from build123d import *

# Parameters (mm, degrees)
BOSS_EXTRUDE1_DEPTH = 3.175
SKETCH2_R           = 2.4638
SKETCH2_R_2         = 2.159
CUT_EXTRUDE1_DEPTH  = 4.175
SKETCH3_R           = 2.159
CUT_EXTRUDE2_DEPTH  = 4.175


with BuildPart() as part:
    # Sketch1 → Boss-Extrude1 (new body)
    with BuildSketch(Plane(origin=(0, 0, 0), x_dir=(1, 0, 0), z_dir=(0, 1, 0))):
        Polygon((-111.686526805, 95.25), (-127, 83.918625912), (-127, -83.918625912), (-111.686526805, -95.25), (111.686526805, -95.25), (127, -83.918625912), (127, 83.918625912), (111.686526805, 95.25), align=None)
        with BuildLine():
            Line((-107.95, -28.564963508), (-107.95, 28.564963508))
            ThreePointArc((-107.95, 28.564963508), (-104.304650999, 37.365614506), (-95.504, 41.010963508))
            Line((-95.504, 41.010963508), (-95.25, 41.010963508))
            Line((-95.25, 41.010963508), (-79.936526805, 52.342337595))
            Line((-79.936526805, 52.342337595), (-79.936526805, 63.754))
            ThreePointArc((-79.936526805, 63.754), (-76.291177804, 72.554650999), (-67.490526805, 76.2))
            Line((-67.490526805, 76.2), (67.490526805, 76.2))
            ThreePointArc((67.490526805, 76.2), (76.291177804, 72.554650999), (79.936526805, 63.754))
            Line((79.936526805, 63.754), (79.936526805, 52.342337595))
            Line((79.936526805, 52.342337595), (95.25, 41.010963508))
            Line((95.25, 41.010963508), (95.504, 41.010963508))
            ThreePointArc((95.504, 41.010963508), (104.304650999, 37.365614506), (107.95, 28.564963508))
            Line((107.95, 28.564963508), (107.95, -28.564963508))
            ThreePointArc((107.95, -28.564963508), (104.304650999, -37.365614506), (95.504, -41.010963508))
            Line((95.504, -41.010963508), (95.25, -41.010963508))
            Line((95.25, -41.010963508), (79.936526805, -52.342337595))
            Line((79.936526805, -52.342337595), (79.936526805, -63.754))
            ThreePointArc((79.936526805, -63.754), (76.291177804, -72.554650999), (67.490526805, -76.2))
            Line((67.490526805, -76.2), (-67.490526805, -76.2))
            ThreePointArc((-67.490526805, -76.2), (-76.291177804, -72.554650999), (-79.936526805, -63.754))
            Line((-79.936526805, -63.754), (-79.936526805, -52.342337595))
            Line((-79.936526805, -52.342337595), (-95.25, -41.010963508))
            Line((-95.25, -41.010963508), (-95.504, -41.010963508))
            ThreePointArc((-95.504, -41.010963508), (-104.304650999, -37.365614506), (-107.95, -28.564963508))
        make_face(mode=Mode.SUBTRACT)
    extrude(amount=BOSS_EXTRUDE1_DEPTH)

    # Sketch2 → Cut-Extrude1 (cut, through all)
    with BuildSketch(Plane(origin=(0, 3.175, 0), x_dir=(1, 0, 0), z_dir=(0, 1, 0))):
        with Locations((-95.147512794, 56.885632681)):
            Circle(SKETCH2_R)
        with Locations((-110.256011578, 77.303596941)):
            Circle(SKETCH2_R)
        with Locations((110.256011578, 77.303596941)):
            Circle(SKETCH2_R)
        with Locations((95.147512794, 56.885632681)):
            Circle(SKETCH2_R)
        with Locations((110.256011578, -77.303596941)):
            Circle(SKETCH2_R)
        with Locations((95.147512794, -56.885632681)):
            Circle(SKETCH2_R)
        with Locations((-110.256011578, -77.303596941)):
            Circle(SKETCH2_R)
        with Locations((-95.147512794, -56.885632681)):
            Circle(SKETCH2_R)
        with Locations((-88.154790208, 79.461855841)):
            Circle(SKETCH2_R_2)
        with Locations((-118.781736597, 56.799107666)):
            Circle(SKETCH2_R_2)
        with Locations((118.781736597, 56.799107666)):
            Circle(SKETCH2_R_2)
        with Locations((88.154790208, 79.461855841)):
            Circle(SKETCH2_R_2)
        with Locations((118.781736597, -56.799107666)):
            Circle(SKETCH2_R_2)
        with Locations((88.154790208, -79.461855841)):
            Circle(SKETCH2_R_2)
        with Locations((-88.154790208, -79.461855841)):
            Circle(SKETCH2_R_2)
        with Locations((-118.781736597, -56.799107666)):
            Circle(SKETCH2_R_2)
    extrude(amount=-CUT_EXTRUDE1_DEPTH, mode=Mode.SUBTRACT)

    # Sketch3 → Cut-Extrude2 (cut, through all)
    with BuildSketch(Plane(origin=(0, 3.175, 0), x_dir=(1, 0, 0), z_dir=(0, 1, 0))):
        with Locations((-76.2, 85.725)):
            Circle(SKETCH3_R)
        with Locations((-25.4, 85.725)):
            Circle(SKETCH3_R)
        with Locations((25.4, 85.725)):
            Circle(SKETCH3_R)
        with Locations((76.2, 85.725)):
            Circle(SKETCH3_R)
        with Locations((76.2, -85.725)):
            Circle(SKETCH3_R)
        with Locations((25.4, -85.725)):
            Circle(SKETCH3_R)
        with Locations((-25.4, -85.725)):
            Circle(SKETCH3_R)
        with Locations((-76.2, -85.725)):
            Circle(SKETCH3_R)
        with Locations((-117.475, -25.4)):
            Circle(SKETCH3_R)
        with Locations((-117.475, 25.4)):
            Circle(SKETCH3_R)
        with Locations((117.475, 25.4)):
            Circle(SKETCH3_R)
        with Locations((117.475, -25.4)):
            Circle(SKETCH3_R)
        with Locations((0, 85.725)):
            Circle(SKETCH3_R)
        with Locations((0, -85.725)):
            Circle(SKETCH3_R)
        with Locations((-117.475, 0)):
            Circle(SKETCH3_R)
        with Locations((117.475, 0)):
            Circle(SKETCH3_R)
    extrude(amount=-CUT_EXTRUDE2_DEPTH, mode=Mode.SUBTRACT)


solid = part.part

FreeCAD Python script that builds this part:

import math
import FreeCAD as App
import Part
import Sketcher

V = App.Vector
Q = App.Units.Quantity


def add_polygon(sketch, points):
    """Adds a closed chain of lines whose ends are joined by coincident constraints."""
    first, n = sketch.GeometryCount, len(points)
    for a, b in zip(points, points[1:] + points[:1]):
        sketch.addGeometry(Part.LineSegment(App.Vector(*a, 0), App.Vector(*b, 0)), False)
    for i in range(n):
        sketch.addConstraint(Sketcher.Constraint("Coincident", first + i, 2, first + (i + 1) % n, 1))

doc = App.newDocument("Part")
body = doc.addObject("PartDesign::Body", "Body")

# Sketch on XZ plane
sketch1 = doc.addObject("Sketcher::SketchObject", "Sketch")
body.addObject(sketch1)
sketch1.AttachmentSupport = (doc.XZ_Plane, [""])
sketch1.MapMode = "FlatFace"
add_polygon(sketch1, [(-111.69, -95.25), (-127, -83.92), (-127, 83.92), (-111.69, 95.25), (111.69, 95.25), (127, 83.92), (127, -83.92), (111.69, -95.25)])  # lines 0-7
sketch1.addGeometry(Part.ArcOfCircle(Part.Circle(V(-95.5, 28.56, 0), V(0, 0, 1), 12.45), math.radians(90), math.radians(180)), False)  # 8
sketch1.addGeometry(Part.LineSegment(V(-107.95, 28.56, 0), V(-107.95, -28.56, 0)), False)  # 9
sketch1.addGeometry(Part.ArcOfCircle(Part.Circle(V(-95.5, -28.56, 0), V(0, 0, 1), 12.45), math.radians(-180), math.radians(-90)), False)  # 10
sketch1.addGeometry(Part.LineSegment(V(-95.5, -41.01, 0), V(-95.25, -41.01, 0)), False)  # 11
sketch1.addGeometry(Part.LineSegment(V(-95.25, -41.01, 0), V(-79.94, -52.34, 0)), False)  # 12
sketch1.addGeometry(Part.LineSegment(V(-79.94, -52.34, 0), V(-79.94, -63.75, 0)), False)  # 13
sketch1.addGeometry(Part.ArcOfCircle(Part.Circle(V(-67.49, -63.75, 0), V(0, 0, 1), 12.45), math.radians(180), math.radians(270)), False)  # 14
sketch1.addGeometry(Part.LineSegment(V(-67.49, -76.2, 0), V(67.49, -76.2, 0)), False)  # 15
sketch1.addGeometry(Part.ArcOfCircle(Part.Circle(V(67.49, -63.75, 0), V(0, 0, 1), 12.45), math.radians(-90), math.radians(0)), False)  # 16
sketch1.addGeometry(Part.LineSegment(V(79.94, -63.75, 0), V(79.94, -52.34, 0)), False)  # 17
sketch1.addGeometry(Part.LineSegment(V(79.94, -52.34, 0), V(95.25, -41.01, 0)), False)  # 18
sketch1.addGeometry(Part.LineSegment(V(95.25, -41.01, 0), V(95.5, -41.01, 0)), False)  # 19
sketch1.addGeometry(Part.ArcOfCircle(Part.Circle(V(95.5, -28.56, 0), V(0, 0, 1), 12.45), math.radians(-90), math.radians(0)), False)  # 20
sketch1.addGeometry(Part.LineSegment(V(107.95, -28.56, 0), V(107.95, 28.56, 0)), False)  # 21
sketch1.addGeometry(Part.ArcOfCircle(Part.Circle(V(95.5, 28.56, 0), V(0, 0, 1), 12.45), math.radians(0), math.radians(90)), False)  # 22
sketch1.addGeometry(Part.LineSegment(V(95.5, 41.01, 0), V(95.25, 41.01, 0)), False)  # 23
sketch1.addGeometry(Part.LineSegment(V(95.25, 41.01, 0), V(79.94, 52.34, 0)), False)  # 24
sketch1.addGeometry(Part.LineSegment(V(79.94, 52.34, 0), V(79.94, 63.75, 0)), False)  # 25
sketch1.addGeometry(Part.ArcOfCircle(Part.Circle(V(67.49, 63.75, 0), V(0, 0, 1), 12.45), math.radians(0), math.radians(90)), False)  # 26
sketch1.addGeometry(Part.LineSegment(V(67.49, 76.2, 0), V(-67.49, 76.2, 0)), False)  # 27
sketch1.addGeometry(Part.ArcOfCircle(Part.Circle(V(-67.49, 63.75, 0), V(0, 0, 1), 12.45), math.radians(90), math.radians(180)), False)  # 28
sketch1.addGeometry(Part.LineSegment(V(-79.94, 63.75, 0), V(-79.94, 52.34, 0)), False)  # 29
sketch1.addGeometry(Part.LineSegment(V(-79.94, 52.34, 0), V(-95.25, 41.01, 0)), False)  # 30
sketch1.addGeometry(Part.LineSegment(V(-95.25, 41.01, 0), V(-95.5, 41.01, 0)), False)  # 31
sketch1.addConstraint([
    Sketcher.Constraint("Tangent", 8, 2, 9, 1),
    Sketcher.Constraint("Tangent", 9, 2, 10, 1),
    Sketcher.Constraint("Tangent", 10, 2, 11, 1),
    Sketcher.Constraint("Coincident", 11, 2, 12, 1),
    Sketcher.Constraint("Coincident", 12, 2, 13, 1),
    Sketcher.Constraint("Tangent", 13, 2, 14, 1),
    Sketcher.Constraint("Tangent", 14, 2, 15, 1),
    Sketcher.Constraint("Tangent", 15, 2, 16, 1),
    Sketcher.Constraint("Tangent", 16, 2, 17, 1),
    Sketcher.Constraint("Coincident", 17, 2, 18, 1),
    Sketcher.Constraint("Coincident", 18, 2, 19, 1),
    Sketcher.Constraint("Tangent", 19, 2, 20, 1),
    Sketcher.Constraint("Tangent", 20, 2, 21, 1),
    Sketcher.Constraint("Tangent", 21, 2, 22, 1),
    Sketcher.Constraint("Tangent", 22, 2, 23, 1),
    Sketcher.Constraint("Coincident", 23, 2, 24, 1),
    Sketcher.Constraint("Coincident", 24, 2, 25, 1),
    Sketcher.Constraint("Tangent", 25, 2, 26, 1),
    Sketcher.Constraint("Tangent", 26, 2, 27, 1),
    Sketcher.Constraint("Tangent", 27, 2, 28, 1),
    Sketcher.Constraint("Tangent", 28, 2, 29, 1),
    Sketcher.Constraint("Coincident", 29, 2, 30, 1),
    Sketcher.Constraint("Coincident", 30, 2, 31, 1),
    Sketcher.Constraint("Tangent", 31, 2, 8, 1),
    Sketcher.Constraint("Vertical", 1),
    Sketcher.Constraint("Horizontal", 3),
    Sketcher.Constraint("Vertical", 5),
    Sketcher.Constraint("Horizontal", 7),
    Sketcher.Constraint("Vertical", 9),
    Sketcher.Constraint("Horizontal", 11),
    Sketcher.Constraint("Vertical", 13),
    Sketcher.Constraint("Horizontal", 15),
    Sketcher.Constraint("Vertical", 17),
    Sketcher.Constraint("Horizontal", 19),
    Sketcher.Constraint("Vertical", 21),
    Sketcher.Constraint("Horizontal", 23),
    Sketcher.Constraint("Vertical", 25),
    Sketcher.Constraint("Horizontal", 27),
    Sketcher.Constraint("Vertical", 29),
    Sketcher.Constraint("Horizontal", 31),
    Sketcher.Constraint("Equal", 8, 10),
    Sketcher.Constraint("Equal", 10, 14),
    Sketcher.Constraint("Equal", 14, 16),
    Sketcher.Constraint("Equal", 16, 20),
    Sketcher.Constraint("Equal", 20, 22),
    Sketcher.Constraint("Equal", 22, 26),
    Sketcher.Constraint("Equal", 26, 28),
    Sketcher.Constraint("Symmetric", 8, 3, 20, 3, -1, 1),
    Sketcher.Constraint("Symmetric", 14, 3, 26, 3, -1, 1),
    Sketcher.Constraint("Symmetric", 0, 2, 4, 2, -1, 1),
    Sketcher.Constraint("Symmetric", 2, 2, 6, 2, -1, 1),
    Sketcher.Constraint("Symmetric", 11, 2, 23, 2, -1, 1),
    Sketcher.Constraint("Symmetric", 17, 2, 29, 2, -1, 1),
    Sketcher.Constraint("Symmetric", 12, 2, 17, 2, -2),
    Sketcher.Constraint("Symmetric", 11, 2, 18, 2, -2),
    Sketcher.Constraint("Parallel", 0, 4),
    Sketcher.Constraint("Parallel", 2, 6),
    Sketcher.Constraint("Parallel", 4, 12),
    Sketcher.Constraint("Parallel", 6, 18),
    Sketcher.Constraint("Parallel", 12, 24),
    Sketcher.Constraint("Parallel", 18, 30),
    Sketcher.Constraint("Horizontal", 1, 2, 4, 2),
    Sketcher.Constraint("Equal", 6, 12),
    Sketcher.Constraint("Radius", 8, Q("0.49 in")),
    Sketcher.Constraint("DistanceX", 0, 2, -1, 1, Q("5 in")),
    Sketcher.Constraint("DistanceY", 14, 2, -1, 1, Q("3 in")),
    Sketcher.Constraint("DistanceX", 11, 1, 11, 2, Q("0.01 in")),
    Sketcher.Constraint("Angle", 0, Q("143.5 deg")),
    Sketcher.Constraint("Distance", 0, Q("0.75 in")),
    Sketcher.Constraint("DistanceX", 8, 3, -1, 1, Q("3.76 in")),
    Sketcher.Constraint("DistanceY", -1, 1, 2, 2, Q("3.75 in")),
    Sketcher.Constraint("DistanceY", 9, 2, 9, 1, 57.129927),
])
pad1 = doc.addObject("PartDesign::Pad", "Pad")
body.addObject(pad1)
pad1.Profile = sketch1
pad1.Length = Q("0.125 in")
pad1.Reversed = True

# Sketch on XZ plane
sketch2 = doc.addObject("Sketcher::SketchObject", "Sketch001")
body.addObject(sketch2)
sketch2.AttachmentSupport = (doc.XZ_Plane, [""])
sketch2.MapMode = "FlatFace"
sketch2.AttachmentOffset = App.Placement(V(0, 0, -0.125 * 25.4), App.Rotation())
sketch2.addGeometry([
    Part.Circle(V(-95.1, -56.9, 0), V(0, 0, 1), 2.5),  # 0
    Part.Circle(V(-110.3, -77.3, 0), V(0, 0, 1), 2.5),  # 1
    Part.Circle(V(110.3, -77.3, 0), V(0, 0, 1), 2.5),  # 2
    Part.Circle(V(95.1, -56.9, 0), V(0, 0, 1), 2.5),  # 3
    Part.Circle(V(110.3, 77.3, 0), V(0, 0, 1), 2.5),  # 4
    Part.Circle(V(95.1, 56.9, 0), V(0, 0, 1), 2.5),  # 5
    Part.Circle(V(-110.3, 77.3, 0), V(0, 0, 1), 2.5),  # 6
    Part.Circle(V(-95.1, 56.9, 0), V(0, 0, 1), 2.5),  # 7
    Part.Circle(V(-88.2, -79.5, 0), V(0, 0, 1), 2.2),  # 8
    Part.Circle(V(-118.8, -56.8, 0), V(0, 0, 1), 2.2),  # 9
    Part.Circle(V(118.8, -56.8, 0), V(0, 0, 1), 2.2),  # 10
    Part.Circle(V(88.2, -79.5, 0), V(0, 0, 1), 2.2),  # 11
    Part.Circle(V(118.8, 56.8, 0), V(0, 0, 1), 2.2),  # 12
    Part.Circle(V(88.2, 79.5, 0), V(0, 0, 1), 2.2),  # 13
    Part.Circle(V(-88.2, 79.5, 0), V(0, 0, 1), 2.2),  # 14
    Part.Circle(V(-118.8, 56.8, 0), V(0, 0, 1), 2.2),  # 15
], False)
sketch2.addConstraint([
    Sketcher.Constraint("Equal", 0, 1),
    Sketcher.Constraint("Equal", 1, 2),
    Sketcher.Constraint("Equal", 2, 3),
    Sketcher.Constraint("Equal", 3, 4),
    Sketcher.Constraint("Equal", 4, 5),
    Sketcher.Constraint("Equal", 5, 6),
    Sketcher.Constraint("Equal", 6, 7),
    Sketcher.Constraint("Equal", 8, 9),
    Sketcher.Constraint("Equal", 9, 10),
    Sketcher.Constraint("Equal", 10, 11),
    Sketcher.Constraint("Equal", 11, 12),
    Sketcher.Constraint("Equal", 12, 13),
    Sketcher.Constraint("Equal", 13, 14),
    Sketcher.Constraint("Equal", 14, 15),
    Sketcher.Constraint("Symmetric", 1, 3, 4, 3, -1, 1),
    Sketcher.Constraint("Symmetric", 0, 3, 5, 3, -1, 1),
    Sketcher.Constraint("Symmetric", 2, 3, 6, 3, -1, 1),
    Sketcher.Constraint("Symmetric", 3, 3, 7, 3, -1, 1),
    Sketcher.Constraint("Symmetric", 9, 3, 12, 3, -1, 1),
    Sketcher.Constraint("Symmetric", 8, 3, 13, 3, -1, 1),
    Sketcher.Constraint("Symmetric", 11, 3, 14, 3, -1, 1),
    Sketcher.Constraint("Symmetric", 10, 3, 15, 3, -1, 1),
    Sketcher.Constraint("Symmetric", 1, 3, 2, 3, -2),
    Sketcher.Constraint("Symmetric", 0, 3, 3, 3, -2),
    Sketcher.Constraint("Symmetric", 9, 3, 10, 3, -2),
    Sketcher.Constraint("Symmetric", 8, 3, 11, 3, -2),
    Sketcher.Constraint("Diameter", 8, Q("0.17 in")),
    Sketcher.Constraint("Diameter", 0, Q("0.194 in")),
    Sketcher.Constraint("DistanceX", 1, 3, 0, 3, 15.108499),
    Sketcher.Constraint("DistanceX", 1, 3, -1, 1, 110.256012),
    Sketcher.Constraint("DistanceX", 8, 3, -1, 1, 88.15479),
    Sketcher.Constraint("DistanceY", 3, 3, 4, 3, 134.18923),
    Sketcher.Constraint("DistanceY", 8, 3, 1, 3, 2.158259),
    Sketcher.Constraint("DistanceY", 1, 3, 9, 3, 20.504489),
    Sketcher.Constraint("DistanceY", 0, 3, -1, 1, 56.885633),
    Sketcher.Constraint("DistanceX", 9, 3, -1, 1, 118.781737),
])
pocket1 = doc.addObject("PartDesign::Pocket", "Pocket")
body.addObject(pocket1)
pocket1.Profile = sketch2
pocket1.Type = "ThroughAll"
pocket1.Reversed = True

# Sketch on XZ plane
sketch3 = doc.addObject("Sketcher::SketchObject", "Sketch002")
body.addObject(sketch3)
sketch3.AttachmentSupport = (doc.XZ_Plane, [""])
sketch3.MapMode = "FlatFace"
sketch3.AttachmentOffset = App.Placement(V(0, 0, -0.125 * 25.4), App.Rotation())
sketch3.addGeometry([
    Part.Circle(V(-76.2, -85.7, 0), V(0, 0, 1), 2.2),  # 0
    Part.Circle(V(-25.4, -85.7, 0), V(0, 0, 1), 2.2),  # 1
    Part.Circle(V(25.4, -85.7, 0), V(0, 0, 1), 2.2),  # 2
    Part.Circle(V(76.2, -85.7, 0), V(0, 0, 1), 2.2),  # 3
    Part.Circle(V(76.2, 85.7, 0), V(0, 0, 1), 2.2),  # 4
    Part.Circle(V(25.4, 85.7, 0), V(0, 0, 1), 2.2),  # 5
    Part.Circle(V(-25.4, 85.7, 0), V(0, 0, 1), 2.2),  # 6
    Part.Circle(V(-76.2, 85.7, 0), V(0, 0, 1), 2.2),  # 7
    Part.Circle(V(-117.5, 25.4, 0), V(0, 0, 1), 2.2),  # 8
    Part.Circle(V(-117.5, -25.4, 0), V(0, 0, 1), 2.2),  # 9
    Part.Circle(V(117.5, -25.4, 0), V(0, 0, 1), 2.2),  # 10
    Part.Circle(V(117.5, 25.4, 0), V(0, 0, 1), 2.2),  # 11
    Part.Circle(V(0, -85.7, 0), V(0, 0, 1), 2.2),  # 12
    Part.Circle(V(0, 85.7, 0), V(0, 0, 1), 2.2),  # 13
    Part.Circle(V(-117.5, 0, 0), V(0, 0, 1), 2.2),  # 14
    Part.Circle(V(117.5, 0, 0), V(0, 0, 1), 2.2),  # 15
], False)
sketch3.addConstraint([
    Sketcher.Constraint("Equal", 0, 1),
    Sketcher.Constraint("Equal", 1, 2),
    Sketcher.Constraint("Equal", 2, 3),
    Sketcher.Constraint("Equal", 3, 4),
    Sketcher.Constraint("Equal", 4, 5),
    Sketcher.Constraint("Equal", 5, 6),
    Sketcher.Constraint("Equal", 6, 7),
    Sketcher.Constraint("Equal", 7, 8),
    Sketcher.Constraint("Equal", 8, 9),
    Sketcher.Constraint("Equal", 9, 10),
    Sketcher.Constraint("Equal", 10, 11),
    Sketcher.Constraint("Equal", 11, 12),
    Sketcher.Constraint("Equal", 12, 13),
    Sketcher.Constraint("Equal", 13, 14),
    Sketcher.Constraint("Equal", 14, 15),
    Sketcher.Constraint("Symmetric", 0, 3, 4, 3, -1, 1),
    Sketcher.Constraint("Symmetric", 1, 3, 5, 3, -1, 1),
    Sketcher.Constraint("Symmetric", 2, 3, 6, 3, -1, 1),
    Sketcher.Constraint("Symmetric", 3, 3, 7, 3, -1, 1),
    Sketcher.Constraint("Symmetric", 8, 3, 10, 3, -1, 1),
    Sketcher.Constraint("Symmetric", 9, 3, 11, 3, -1, 1),
    Sketcher.Constraint("Symmetric", 12, 3, 13, 3, -1, 1),
    Sketcher.Constraint("Symmetric", 14, 3, 15, 3, -1, 1),
    Sketcher.Constraint("Symmetric", 1, 3, 2, 3, -2),
    Sketcher.Constraint("Symmetric", 0, 3, 3, 3, -2),
    Sketcher.Constraint("Symmetric", 9, 3, 10, 3, -2),
    Sketcher.Constraint("PointOnObject", 12, 3, -2),
    Sketcher.Constraint("PointOnObject", 14, 3, -1),
    Sketcher.Constraint("Horizontal", 0, 3, 1, 3),
    Sketcher.Constraint("Horizontal", 3, 3, 12, 3),
    Sketcher.Constraint("Vertical", 9, 3, 14, 3),
    Sketcher.Constraint("Diameter", 0, Q("0.17 in")),
    Sketcher.Constraint("DistanceX", 0, 3, -1, 1, Q("3 in")),
    Sketcher.Constraint("DistanceX", 1, 3, -1, 1, Q("1 in")),
    Sketcher.Constraint("DistanceY", -1, 1, 8, 3, Q("1 in")),
    Sketcher.Constraint("DistanceY", 3, 3, 4, 3, Q("6.75 in")),
    Sketcher.Constraint("DistanceX", 8, 3, -1, 1, Q("4.625 in")),
])
pocket2 = doc.addObject("PartDesign::Pocket", "Pocket001")
body.addObject(pocket2)
pocket2.Profile = sketch3
pocket2.Type = "ThroughAll"
pocket2.Reversed = True

doc.recompute()
